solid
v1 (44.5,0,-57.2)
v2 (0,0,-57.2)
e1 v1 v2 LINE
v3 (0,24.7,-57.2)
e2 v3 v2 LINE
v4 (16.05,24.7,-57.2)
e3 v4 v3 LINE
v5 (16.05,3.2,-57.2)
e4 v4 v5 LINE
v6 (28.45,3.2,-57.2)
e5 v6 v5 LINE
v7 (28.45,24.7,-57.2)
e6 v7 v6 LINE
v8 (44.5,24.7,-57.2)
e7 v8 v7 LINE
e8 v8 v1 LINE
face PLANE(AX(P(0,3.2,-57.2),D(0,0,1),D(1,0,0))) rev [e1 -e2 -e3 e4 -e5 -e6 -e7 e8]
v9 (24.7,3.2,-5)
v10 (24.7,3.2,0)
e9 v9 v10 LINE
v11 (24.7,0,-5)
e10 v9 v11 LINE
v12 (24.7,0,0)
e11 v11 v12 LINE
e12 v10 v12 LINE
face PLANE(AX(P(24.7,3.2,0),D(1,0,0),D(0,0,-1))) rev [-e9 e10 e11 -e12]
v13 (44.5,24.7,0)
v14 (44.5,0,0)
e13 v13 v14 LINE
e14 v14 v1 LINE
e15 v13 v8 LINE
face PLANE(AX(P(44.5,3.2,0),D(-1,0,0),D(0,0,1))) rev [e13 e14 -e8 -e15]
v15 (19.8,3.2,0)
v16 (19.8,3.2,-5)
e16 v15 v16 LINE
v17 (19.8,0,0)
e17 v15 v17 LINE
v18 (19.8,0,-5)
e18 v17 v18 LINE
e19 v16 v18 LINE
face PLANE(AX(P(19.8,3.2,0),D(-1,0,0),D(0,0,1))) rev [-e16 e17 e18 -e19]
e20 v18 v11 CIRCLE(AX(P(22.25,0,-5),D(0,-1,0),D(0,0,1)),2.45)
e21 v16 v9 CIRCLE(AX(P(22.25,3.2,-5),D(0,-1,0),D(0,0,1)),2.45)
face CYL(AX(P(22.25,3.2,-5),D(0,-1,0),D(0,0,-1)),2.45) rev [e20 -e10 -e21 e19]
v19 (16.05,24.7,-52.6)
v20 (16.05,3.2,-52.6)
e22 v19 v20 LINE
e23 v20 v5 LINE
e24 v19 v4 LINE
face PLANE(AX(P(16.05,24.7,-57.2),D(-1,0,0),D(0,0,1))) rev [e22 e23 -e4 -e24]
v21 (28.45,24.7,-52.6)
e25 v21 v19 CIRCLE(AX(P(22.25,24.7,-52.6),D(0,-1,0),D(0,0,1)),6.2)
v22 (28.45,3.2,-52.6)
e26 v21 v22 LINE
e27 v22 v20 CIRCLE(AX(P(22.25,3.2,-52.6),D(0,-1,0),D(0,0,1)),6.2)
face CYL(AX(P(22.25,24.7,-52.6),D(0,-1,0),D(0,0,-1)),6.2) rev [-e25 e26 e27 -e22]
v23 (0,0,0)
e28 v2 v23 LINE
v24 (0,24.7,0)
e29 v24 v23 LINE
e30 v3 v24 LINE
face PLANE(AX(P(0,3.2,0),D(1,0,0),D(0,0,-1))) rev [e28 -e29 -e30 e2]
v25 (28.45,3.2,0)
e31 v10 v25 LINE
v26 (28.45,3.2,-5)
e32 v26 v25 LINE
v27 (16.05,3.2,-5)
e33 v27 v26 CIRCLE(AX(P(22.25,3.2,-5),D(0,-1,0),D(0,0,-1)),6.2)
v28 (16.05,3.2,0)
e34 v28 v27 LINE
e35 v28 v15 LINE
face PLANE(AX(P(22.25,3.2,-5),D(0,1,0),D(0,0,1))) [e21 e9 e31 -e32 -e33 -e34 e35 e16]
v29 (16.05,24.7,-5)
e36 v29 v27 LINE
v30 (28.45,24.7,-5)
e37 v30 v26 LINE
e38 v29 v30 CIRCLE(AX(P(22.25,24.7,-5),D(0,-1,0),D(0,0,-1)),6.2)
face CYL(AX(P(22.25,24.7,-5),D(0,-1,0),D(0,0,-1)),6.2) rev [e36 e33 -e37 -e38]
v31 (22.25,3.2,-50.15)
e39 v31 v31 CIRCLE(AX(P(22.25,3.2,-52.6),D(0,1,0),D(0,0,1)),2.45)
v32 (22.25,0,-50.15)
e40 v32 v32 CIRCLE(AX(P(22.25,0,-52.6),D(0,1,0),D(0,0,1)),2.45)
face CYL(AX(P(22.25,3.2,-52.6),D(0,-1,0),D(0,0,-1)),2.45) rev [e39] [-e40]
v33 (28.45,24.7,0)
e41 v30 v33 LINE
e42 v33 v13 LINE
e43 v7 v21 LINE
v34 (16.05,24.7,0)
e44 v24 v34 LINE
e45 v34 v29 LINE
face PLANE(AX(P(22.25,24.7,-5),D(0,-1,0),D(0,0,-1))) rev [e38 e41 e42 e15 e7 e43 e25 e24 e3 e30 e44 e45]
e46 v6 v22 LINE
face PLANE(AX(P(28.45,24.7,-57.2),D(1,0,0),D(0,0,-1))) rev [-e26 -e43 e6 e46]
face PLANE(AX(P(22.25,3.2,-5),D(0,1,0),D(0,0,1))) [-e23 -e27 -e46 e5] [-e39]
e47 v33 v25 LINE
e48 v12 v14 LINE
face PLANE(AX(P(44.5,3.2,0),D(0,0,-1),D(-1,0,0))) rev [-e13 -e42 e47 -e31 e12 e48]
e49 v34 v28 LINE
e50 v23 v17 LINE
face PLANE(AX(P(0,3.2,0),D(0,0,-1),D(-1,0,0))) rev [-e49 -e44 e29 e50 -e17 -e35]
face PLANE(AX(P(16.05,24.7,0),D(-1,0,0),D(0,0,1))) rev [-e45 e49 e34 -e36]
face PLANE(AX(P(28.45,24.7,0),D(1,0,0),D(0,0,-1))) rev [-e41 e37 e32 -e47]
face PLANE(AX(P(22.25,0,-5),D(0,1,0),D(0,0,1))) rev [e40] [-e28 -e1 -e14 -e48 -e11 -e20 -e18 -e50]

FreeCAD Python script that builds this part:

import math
import FreeCAD as App
import Part
import Sketcher

doc = App.newDocument("Part")
body = doc.addObject("PartDesign::Body", "Body")

sketch1 = doc.addObject("Sketcher::SketchObject", "Sketch")
body.addObject(sketch1)
sketch1.AttachmentSupport = (doc.XZ_Plane, [""])
sketch1.MapMode = "FlatFace"
sketch1.addGeometry([
    Part.LineSegment(App.Vector(0, 0, 0), App.Vector(19.8, 0, 0)),
    Part.LineSegment(App.Vector(19.8, 0, 0), App.Vector(19.8, -5, 0)),
    Part.ArcOfCircle(Part.Circle(App.Vector(22.2, -5, 0), App.Vector(0, 0, 1), 2.5), math.radians(180), math.radians(360)),
    Part.LineSegment(App.Vector(24.7, -5, 0), App.Vector(24.7, 0, 0)),
    Part.LineSegment(App.Vector(24.7, 0, 0), App.Vector(44.5, 0, 0)),
    Part.LineSegment(App.Vector(44.5, 0, 0), App.Vector(44.5, -57.2, 0)),
    Part.LineSegment(App.Vector(44.5, -57.2, 0), App.Vector(0, -57.2, 0)),
    Part.LineSegment(App.Vector(0, -57.2, 0), App.Vector(0, 0, 0)),
    Part.Circle(App.Vector(22.2, -52.6, 0), App.Vector(0, 0, 1), 2.5),
], False)
sketch1.addConstraint([
    Sketcher.Constraint("Coincident", 0, 2, 1, 1),
    Sketcher.Constraint("Tangent", 1, 2, 2, 1),
    Sketcher.Constraint("Tangent", 2, 2, 3, 1),
    Sketcher.Constraint("Coincident", 3, 2, 4, 1),
    Sketcher.Constraint("Coincident", 4, 2, 5, 1),
    Sketcher.Constraint("Coincident", 5, 2, 6, 1),
    Sketcher.Constraint("Coincident", 6, 2, 7, 1),
    Sketcher.Constraint("Coincident", 7, 2, 0, 1),
    Sketcher.Constraint("Horizontal", 0),
    Sketcher.Constraint("Vertical", 1),
    Sketcher.Constraint("Vertical", 3),
    Sketcher.Constraint("Horizontal", 4),
    Sketcher.Constraint("Vertical", 5),
    Sketcher.Constraint("Horizontal", 6),
    Sketcher.Constraint("Vertical", 7),
    Sketcher.Constraint("Coincident", 7, 2, -1, 1),
    Sketcher.Constraint("Equal", 2, 8),
    Sketcher.Constraint("PointOnObject", 3, 2, -1),
    Sketcher.Constraint("Vertical", 2, 3, 8, 3),
    Sketcher.Constraint("Equal", 0, 4),
    Sketcher.Constraint("Diameter", 8, 4.9),
    Sketcher.Constraint("DistanceY", 1, 2, 1, 1, 5.0),
    Sketcher.Constraint("DistanceX", 0, 1, 0, 2, 19.8),
    Sketcher.Constraint("DistanceY", 5, 2, 5, 1, 57.2),
    Sketcher.Constraint("DistanceY", 8, 3, -1, 1, 52.6),
])
pad1 = doc.addObject("PartDesign::Pad", "Pad")
body.addObject(pad1)
pad1.Profile = sketch1
pad1.Length = 3.2
pad1.Reversed = True

sketch2 = doc.addObject("Sketcher::SketchObject", "Sketch001")
body.addObject(sketch2)
sketch2.AttachmentSupport = (doc.XZ_Plane, [""])
sketch2.MapMode = "FlatFace"
sketch2.AttachmentOffset = App.Placement(App.Vector(0, 0, -3.2), App.Rotation())
sketch2.addGeometry([
    Part.LineSegment(App.Vector(0, -57.2, 0), App.Vector(0, 0, 0)),
    Part.LineSegment(App.Vector(0, 0, 0), App.Vector(16.1, 0, 0)),
    Part.LineSegment(App.Vector(16.1, 0, 0), App.Vector(16.1, -5, 0)),
    Part.ArcOfCircle(Part.Circle(App.Vector(22.2, -5, 0), App.Vector(0, 0, 1), 6.2), math.radians(180), math.radians(360)),
    Part.LineSegment(App.Vector(28.4, -5, 0), App.Vector(28.4, 0, 0)),
    Part.LineSegment(App.Vector(28.4, 0, 0), App.Vector(44.5, 0, 0)),
    Part.LineSegment(App.Vector(44.5, 0, 0), App.Vector(44.5, -57.2, 0)),
    Part.LineSegment(App.Vector(44.5, -57.2, 0), App.Vector(28.4, -57.2, 0)),
    Part.LineSegment(App.Vector(28.4, -57.2, 0), App.Vector(28.4, -52.6, 0)),
    Part.ArcOfCircle(Part.Circle(App.Vector(22.2, -52.6, 0), App.Vector(0, 0, 1), 6.2), math.radians(0), math.radians(180)),
    Part.LineSegment(App.Vector(16.1, -52.6, 0), App.Vector(16.1, -57.2, 0)),
    Part.LineSegment(App.Vector(16.1, -57.2, 0), App.Vector(0, -57.2, 0)),
], False)
sketch2.addConstraint([
    Sketcher.Constraint("Coincident", 0, 2, 1, 1),
    Sketcher.Constraint("Coincident", 1, 2, 2, 1),
    Sketcher.Constraint("Tangent", 2, 2, 3, 1),
    Sketcher.Constraint("Tangent", 3, 2, 4, 1),
    Sketcher.Constraint("Coincident", 4, 2, 5, 1),
    Sketcher.Constraint("Coincident", 5, 2, 6, 1),
    Sketcher.Constraint("Coincident", 6, 2, 7, 1),
    Sketcher.Constraint("Coincident", 7, 2, 8, 1),
    Sketcher.Constraint("Tangent", 8, 2, 9, 1),
    Sketcher.Constraint("Tangent", 9, 2, 10, 1),
    Sketcher.Constraint("Coincident", 10, 2, 11, 1),
    Sketcher.Constraint("Coincident", 11, 2, 0, 1),
    Sketcher.Constraint("Vertical", 0),
    Sketcher.Constraint("Horizontal", 1),
    Sketcher.Constraint("Vertical", 2),
    Sketcher.Constraint("Vertical", 4),
    Sketcher.Constraint("Horizontal", 5),
    Sketcher.Constraint("Vertical", 6),
    Sketcher.Constraint("Horizontal", 7),
    Sketcher.Constraint("Vertical", 8),
    Sketcher.Constraint("Vertical", 10),
    Sketcher.Constraint("Horizontal", 11),
    Sketcher.Constraint("Coincident", 0, 2, -1, 1),
    Sketcher.Constraint("Equal", 3, 9),
    Sketcher.Constraint("PointOnObject", 4, 2, -1),
    Sketcher.Constraint("Horizontal", 7, 2, 10, 2),
    Sketcher.Constraint("Vertical", 3, 3, 9, 3),
    Sketcher.Constraint("Equal", 1, 5),
    Sketcher.Constraint("Radius", 3, 6.2),
    Sketcher.Constraint("DistanceY", 2, 2, 2, 1, 5.0),
    Sketcher.Constraint("DistanceY", 0, 1, 0, 2, 57.2),
    Sketcher.Constraint("DistanceY", 8, 1, 8, 2, 4.6),
    Sketcher.Constraint("DistanceX", 1, 1, 1, 2, 16.05),
])
pad2 = doc.addObject("PartDesign::Pad", "Pad001")
body.addObject(pad2)
pad2.Profile = sketch2
pad2.Length = 21.5
pad2.Reversed = True

doc.recompute()
